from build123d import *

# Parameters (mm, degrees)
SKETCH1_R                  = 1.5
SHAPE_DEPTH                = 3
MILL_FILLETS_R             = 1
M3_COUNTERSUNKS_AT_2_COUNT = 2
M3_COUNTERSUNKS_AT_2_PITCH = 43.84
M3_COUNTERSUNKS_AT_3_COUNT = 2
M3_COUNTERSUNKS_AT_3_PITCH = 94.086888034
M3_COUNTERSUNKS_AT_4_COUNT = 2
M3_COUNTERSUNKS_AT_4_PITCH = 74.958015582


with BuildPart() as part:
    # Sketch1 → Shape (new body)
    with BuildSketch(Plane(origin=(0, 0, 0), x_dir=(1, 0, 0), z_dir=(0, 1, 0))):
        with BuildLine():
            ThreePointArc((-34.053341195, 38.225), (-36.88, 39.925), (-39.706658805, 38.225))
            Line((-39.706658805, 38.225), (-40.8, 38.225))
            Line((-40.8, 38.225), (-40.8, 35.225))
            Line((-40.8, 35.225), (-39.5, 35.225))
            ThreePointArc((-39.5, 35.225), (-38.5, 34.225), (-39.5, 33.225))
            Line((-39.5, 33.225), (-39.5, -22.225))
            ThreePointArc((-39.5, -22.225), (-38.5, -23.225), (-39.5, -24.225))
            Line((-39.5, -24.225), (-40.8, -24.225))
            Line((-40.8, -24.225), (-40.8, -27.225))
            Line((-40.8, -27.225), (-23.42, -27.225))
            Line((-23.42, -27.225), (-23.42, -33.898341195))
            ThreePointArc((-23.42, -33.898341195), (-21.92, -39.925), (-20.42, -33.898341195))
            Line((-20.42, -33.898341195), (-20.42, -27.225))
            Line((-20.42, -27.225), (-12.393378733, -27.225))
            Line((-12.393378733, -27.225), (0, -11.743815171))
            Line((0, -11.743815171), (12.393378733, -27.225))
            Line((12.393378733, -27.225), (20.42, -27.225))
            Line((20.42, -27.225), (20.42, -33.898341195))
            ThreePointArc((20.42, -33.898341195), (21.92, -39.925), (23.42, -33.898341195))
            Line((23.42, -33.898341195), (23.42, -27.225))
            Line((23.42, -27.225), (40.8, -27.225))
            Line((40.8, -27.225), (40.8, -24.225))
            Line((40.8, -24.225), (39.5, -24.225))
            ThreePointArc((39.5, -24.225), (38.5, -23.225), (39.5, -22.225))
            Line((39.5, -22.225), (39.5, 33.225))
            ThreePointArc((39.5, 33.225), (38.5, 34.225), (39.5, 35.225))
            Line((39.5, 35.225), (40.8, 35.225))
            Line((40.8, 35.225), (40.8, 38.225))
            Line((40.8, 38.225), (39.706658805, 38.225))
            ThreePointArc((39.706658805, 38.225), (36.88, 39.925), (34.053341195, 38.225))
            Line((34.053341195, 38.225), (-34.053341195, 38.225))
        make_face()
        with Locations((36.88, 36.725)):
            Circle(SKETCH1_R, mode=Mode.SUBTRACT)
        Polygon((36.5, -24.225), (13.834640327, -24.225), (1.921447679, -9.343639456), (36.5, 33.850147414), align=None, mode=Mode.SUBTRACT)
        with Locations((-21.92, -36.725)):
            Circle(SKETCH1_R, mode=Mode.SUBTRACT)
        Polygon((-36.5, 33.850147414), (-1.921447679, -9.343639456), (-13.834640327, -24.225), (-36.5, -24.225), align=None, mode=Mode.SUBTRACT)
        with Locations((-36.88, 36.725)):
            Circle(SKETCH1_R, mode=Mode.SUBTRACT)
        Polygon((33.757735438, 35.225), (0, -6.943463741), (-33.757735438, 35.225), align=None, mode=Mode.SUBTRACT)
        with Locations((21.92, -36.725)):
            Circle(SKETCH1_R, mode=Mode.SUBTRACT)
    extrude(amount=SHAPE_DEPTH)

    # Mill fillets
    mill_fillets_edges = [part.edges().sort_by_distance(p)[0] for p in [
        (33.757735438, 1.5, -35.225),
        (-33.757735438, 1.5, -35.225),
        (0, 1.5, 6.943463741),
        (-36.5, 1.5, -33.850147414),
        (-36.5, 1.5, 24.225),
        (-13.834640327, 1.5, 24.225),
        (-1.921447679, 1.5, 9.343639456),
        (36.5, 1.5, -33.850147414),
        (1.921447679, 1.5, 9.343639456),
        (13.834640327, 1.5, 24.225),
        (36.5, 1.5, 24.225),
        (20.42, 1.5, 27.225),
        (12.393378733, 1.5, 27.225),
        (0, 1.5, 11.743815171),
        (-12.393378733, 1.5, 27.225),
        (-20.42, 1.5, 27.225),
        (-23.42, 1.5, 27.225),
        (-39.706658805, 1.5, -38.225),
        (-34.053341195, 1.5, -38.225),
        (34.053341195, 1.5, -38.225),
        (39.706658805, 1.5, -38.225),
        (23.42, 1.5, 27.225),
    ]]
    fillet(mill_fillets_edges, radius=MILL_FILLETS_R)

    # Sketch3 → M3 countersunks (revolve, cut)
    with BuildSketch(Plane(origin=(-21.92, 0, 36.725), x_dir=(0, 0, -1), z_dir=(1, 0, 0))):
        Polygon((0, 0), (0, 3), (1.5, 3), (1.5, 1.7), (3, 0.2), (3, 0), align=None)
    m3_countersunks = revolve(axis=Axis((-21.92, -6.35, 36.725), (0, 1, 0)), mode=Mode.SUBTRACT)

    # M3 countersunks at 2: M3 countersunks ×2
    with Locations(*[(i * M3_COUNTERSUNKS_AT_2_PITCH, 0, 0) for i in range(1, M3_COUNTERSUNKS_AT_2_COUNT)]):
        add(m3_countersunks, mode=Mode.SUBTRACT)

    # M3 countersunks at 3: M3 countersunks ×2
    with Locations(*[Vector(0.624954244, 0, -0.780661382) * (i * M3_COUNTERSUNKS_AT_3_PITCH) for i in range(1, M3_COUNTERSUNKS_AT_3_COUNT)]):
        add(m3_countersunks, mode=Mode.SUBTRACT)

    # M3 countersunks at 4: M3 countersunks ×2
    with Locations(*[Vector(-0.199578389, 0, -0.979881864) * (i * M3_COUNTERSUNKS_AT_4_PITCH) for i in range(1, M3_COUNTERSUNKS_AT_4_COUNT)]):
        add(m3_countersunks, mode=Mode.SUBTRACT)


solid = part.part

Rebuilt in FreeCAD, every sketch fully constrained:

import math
import FreeCAD as App
import Part
import Sketcher
Q = App.Units.Quantity


def edges_at(feature, points):
    """Names of the edges that pass closest to the given points."""
    edges = feature.Shape.Edges
    near = lambda p: min(range(len(edges)), key=lambda i: edges[i].distToShape(Part.Vertex(*p))[0])
    return sorted({f"Edge{near(p) + 1}" for p in points})

doc = App.newDocument("Part")
params = doc.addObject("Spreadsheet::Sheet", "Params")
for row, (alias, value) in enumerate([
    ("sketch1_diameter", "3 mm"),
    ("sketch1_radius", "1 mm"),
    ("sketch1_radius2", "3.2 mm"),
    ("sketch1_height", "3 mm"),
    ("sketch1_width", "1.3 mm"),
    ("pad1_length", "3 mm"),
    ("fillet_radius", "1 mm"),
    ("sketch2_width", "3 mm"),
    ("sketch2_width2", "0.2 mm"),
    ("sketch2_width3", "1.3 mm"),
    ("groove_angle", "360 deg"),
    ("linearpattern_pitch", "43.84 mm"),
    ("linearpattern2_pitch", "94.086888 mm"),
    ("linearpattern3_pitch", "74.958016 mm"),
], start=1):
    params.set(f"A{row}", alias)
    params.set(f"B{row}", "=" + value)
    params.setAlias(f"B{row}", alias)

body = doc.addObject("PartDesign::Body", "Body")

# Sketch on XZ plane
sketch1 = body.newObject("Sketcher::SketchObject", "Sketch")
sketch1.AttachmentSupport = (doc.getObject("XZ_Plane"), [""])
sketch1.MapMode = "FlatFace"
sketch1.addGeometry([
    Part.ArcOfCircle(Part.Circle(App.Vector(-36.9, -36.7, 0), App.Vector(0, 0, 1), 3.2), math.radians(-152), math.radians(-28)),  # 0
    Part.LineSegment(App.Vector(-39.7, -38.2, 0), App.Vector(-40.8, -38.2, 0)),  # 1
    Part.LineSegment(App.Vector(-40.8, -38.2, 0), App.Vector(-40.8, -35.2, 0)),  # 2
    Part.LineSegment(App.Vector(-40.8, -35.2, 0), App.Vector(-39.5, -35.2, 0)),  # 3
    Part.ArcOfCircle(Part.Circle(App.Vector(-39.5, -34.2, 0), App.Vector(0, 0, 1), 1), math.radians(-90), math.radians(90)),  # 4
    Part.LineSegment(App.Vector(-39.5, -33.2, 0), App.Vector(-39.5, 22.2, 0)),  # 5
    Part.ArcOfCircle(Part.Circle(App.Vector(-39.5, 23.2, 0), App.Vector(0, 0, 1), 1), math.radians(-90), math.radians(90)),  # 6
    Part.LineSegment(App.Vector(-39.5, 24.2, 0), App.Vector(-40.8, 24.2, 0)),  # 7
    Part.LineSegment(App.Vector(-40.8, 24.2, 0), App.Vector(-40.8, 27.2, 0)),  # 8
    Part.LineSegment(App.Vector(-40.8, 27.2, 0), App.Vector(-23.4, 27.2, 0)),  # 9
    Part.LineSegment(App.Vector(-23.4, 27.2, 0), App.Vector(-23.4, 33.9, 0)),  # 10
    Part.ArcOfCircle(Part.Circle(App.Vector(-21.9, 36.7, 0), App.Vector(0, 0, 1), 3.2), math.radians(-62), math.radians(242)),  # 11
    Part.LineSegment(App.Vector(-20.4, 33.9, 0), App.Vector(-20.4, 27.2, 0)),  # 12
    Part.LineSegment(App.Vector(-20.4, 27.2, 0), App.Vector(-12.4, 27.2, 0)),  # 13
    Part.LineSegment(App.Vector(-12.4, 27.2, 0), App.Vector(0, 11.7, 0)),  # 14
    Part.LineSegment(App.Vector(0, 11.7, 0), App.Vector(12.4, 27.2, 0)),  # 15
    Part.LineSegment(App.Vector(12.4, 27.2, 0), App.Vector(20.4, 27.2, 0)),  # 16
    Part.LineSegment(App.Vector(20.4, 27.2, 0), App.Vector(20.4, 33.9, 0)),  # 17
    Part.ArcOfCircle(Part.Circle(App.Vector(21.9, 36.7, 0), App.Vector(0, 0, 1), 3.2), math.radians(-62), math.radians(242)),  # 18
    Part.LineSegment(App.Vector(23.4, 33.9, 0), App.Vector(23.4, 27.2, 0)),  # 19
    Part.LineSegment(App.Vector(23.4, 27.2, 0), App.Vector(40.8, 27.2, 0)),  # 20
    Part.LineSegment(App.Vector(40.8, 27.2, 0), App.Vector(40.8, 24.2, 0)),  # 21
    Part.LineSegment(App.Vector(40.8, 24.2, 0), App.Vector(39.5, 24.2, 0)),  # 22
    Part.ArcOfCircle(Part.Circle(App.Vector(39.5, 23.2, 0), App.Vector(0, 0, 1), 1), math.radians(90), math.radians(270)),  # 23
    Part.LineSegment(App.Vector(39.5, 22.2, 0), App.Vector(39.5, -33.2, 0)),  # 24
    Part.ArcOfCircle(Part.Circle(App.Vector(39.5, -34.2, 0), App.Vector(0, 0, 1), 1), math.radians(90), math.radians(270)),  # 25
    Part.LineSegment(App.Vector(39.5, -35.2, 0), App.Vector(40.8, -35.2, 0)),  # 26
    Part.LineSegment(App.Vector(40.8, -35.2, 0), App.Vector(40.8, -38.2, 0)),  # 27
    Part.LineSegment(App.Vector(40.8, -38.2, 0), App.Vector(39.7, -38.2, 0)),  # 28
    Part.ArcOfCircle(Part.Circle(App.Vector(36.9, -36.7, 0), App.Vector(0, 0, 1), 3.2), math.radians(-152), math.radians(-28)),  # 29
    Part.LineSegment(App.Vector(34.1, -38.2, 0), App.Vector(-34.1, -38.2, 0)),  # 30
    Part.Circle(App.Vector(-21.9, 36.7, 0), App.Vector(0, 0, 1), 1.5),  # 31
    Part.Circle(App.Vector(21.9, 36.7, 0), App.Vector(0, 0, 1), 1.5),  # 32
    Part.LineSegment(App.Vector(-36.5, 24.2, 0), App.Vector(-36.5, -33.9, 0)),  # 33
    Part.LineSegment(App.Vector(-36.5, -33.9, 0), App.Vector(-1.9, 9.3, 0)),  # 34
    Part.LineSegment(App.Vector(-1.9, 9.3, 0), App.Vector(-13.8, 24.2, 0)),  # 35
    Part.LineSegment(App.Vector(-13.8, 24.2, 0), App.Vector(-36.5, 24.2, 0)),  # 36
    Part.LineSegment(App.Vector(-33.8, -35.2, 0), App.Vector(33.8, -35.2, 0)),  # 37
    Part.LineSegment(App.Vector(33.8, -35.2, 0), App.Vector(0, 6.9, 0)),  # 38
    Part.LineSegment(App.Vector(0, 6.9, 0), App.Vector(-33.8, -35.2, 0)),  # 39
    Part.Circle(App.Vector(-36.9, -36.7, 0), App.Vector(0, 0, 1), 1.5),  # 40
    Part.LineSegment(App.Vector(36.5, -33.9, 0), App.Vector(36.5, 24.2, 0)),  # 41
    Part.LineSegment(App.Vector(36.5, 24.2, 0), App.Vector(13.8, 24.2, 0)),  # 42
    Part.LineSegment(App.Vector(13.8, 24.2, 0), App.Vector(1.9, 9.3, 0)),  # 43
    Part.LineSegment(App.Vector(1.9, 9.3, 0), App.Vector(36.5, -33.9, 0)),  # 44
    Part.Circle(App.Vector(36.9, -36.7, 0), App.Vector(0, 0, 1), 1.5),  # 45
], False)
sketch1.addConstraint([
    Sketcher.Constraint("Coincident", 0, 1, 1, 1),
    Sketcher.Constraint("Coincident", 1, 2, 2, 1),
    Sketcher.Constraint("Coincident", 2, 2, 3, 1),
    Sketcher.Constraint("Tangent", 3, 2, 4, 1),
    Sketcher.Constraint("Coincident", 4, 2, 5, 1),
    Sketcher.Constraint("Coincident", 5, 2, 6, 1),
    Sketcher.Constraint("Tangent", 6, 2, 7, 1),
    Sketcher.Constraint("Coincident", 7, 2, 8, 1),
    Sketcher.Constraint("Coincident", 8, 2, 9, 1),
    Sketcher.Constraint("Coincident", 9, 2, 10, 1),
    Sketcher.Constraint("Coincident", 10, 2, 11, 2),
    Sketcher.Constraint("Coincident", 11, 1, 12, 1),
    Sketcher.Constraint("Coincident", 12, 2, 13, 1),
    Sketcher.Constraint("Coincident", 13, 2, 14, 1),
    Sketcher.Constraint("Coincident", 14, 2, 15, 1),
    Sketcher.Constraint("Coincident", 15, 2, 16, 1),
    Sketcher.Constraint("Coincident", 16, 2, 17, 1),
    Sketcher.Constraint("Coincident", 17, 2, 18, 2),
    Sketcher.Constraint("Coincident", 18, 1, 19, 1),
    Sketcher.Constraint("Coincident", 19, 2, 20, 1),
    Sketcher.Constraint("Coincident", 20, 2, 21, 1),
    Sketcher.Constraint("Coincident", 21, 2, 22, 1),
    Sketcher.Constraint("Tangent", 22, 2, 23, 1),
    Sketcher.Constraint("Coincident", 23, 2, 24, 1),
    Sketcher.Constraint("Coincident", 24, 2, 25, 1),
    Sketcher.Constraint("Tangent", 25, 2, 26, 1),
    Sketcher.Constraint("Coincident", 26, 2, 27, 1),
    Sketcher.Constraint("Coincident", 27, 2, 28, 1),
    Sketcher.Constraint("Coincident", 28, 2, 29, 2),
    Sketcher.Constraint("Coincident", 29, 1, 30, 1),
    Sketcher.Constraint("Coincident", 30, 2, 0, 2),
    Sketcher.Constraint("Coincident", 33, 2, 34, 1),
    Sketcher.Constraint("Coincident", 34, 2, 35, 1),
    Sketcher.Constraint("Coincident", 35, 2, 36, 1),
    Sketcher.Constraint("Coincident", 36, 2, 33, 1),
    Sketcher.Constraint("Coincident", 37, 2, 38, 1),
    Sketcher.Constraint("Coincident", 38, 2, 39, 1),
    Sketcher.Constraint("Coincident", 39, 2, 37, 1),
    Sketcher.Constraint("Coincident", 41, 2, 42, 1),
    Sketcher.Constraint("Coincident", 42, 2, 43, 1),
    Sketcher.Constraint("Coincident", 43, 2, 44, 1),
    Sketcher.Constraint("Coincident", 44, 2, 41, 1),
    Sketcher.Constraint("Horizontal", 1),
    Sketcher.Constraint("Vertical", 2),
    Sketcher.Constraint("Horizontal", 3),
    Sketcher.Constraint("Vertical", 5),
    Sketcher.Constraint("Horizontal", 7),
    Sketcher.Constraint("Vertical", 8),
    Sketcher.Constraint("Horizontal", 9),
    Sketcher.Constraint("Vertical", 10),
    Sketcher.Constraint("Vertical", 12),
    Sketcher.Constraint("Horizontal", 13),
    Sketcher.Constraint("Horizontal", 16),
    Sketcher.Constraint("Vertical", 17),
    Sketcher.Constraint("Vertical", 19),
    Sketcher.Constraint("Horizontal", 20),
    Sketcher.Constraint("Vertical", 21),
    Sketcher.Constraint("Horizontal", 22),
    Sketcher.Constraint("Vertical", 24),
    Sketcher.Constraint("Horizontal", 26),
    Sketcher.Constraint("Vertical", 27),
    Sketcher.Constraint("Horizontal", 28),
    Sketcher.Constraint("Horizontal", 30),
    Sketcher.Constraint("Vertical", 33),
    Sketcher.Constraint("Horizontal", 36),
    Sketcher.Constraint("Horizontal", 37),
    Sketcher.Constraint("Vertical", 41),
    Sketcher.Constraint("Horizontal", 42),
    Sketcher.Constraint("Coincident", 31, 3, 11, 3),
    Sketcher.Constraint("Coincident", 32, 3, 18, 3),
    Sketcher.Constraint("Coincident", 40, 3, 0, 3),
    Sketcher.Constraint("Coincident", 45, 3, 29, 3),
    Sketcher.Constraint("Equal", 4, 6),
    Sketcher.Constraint("Equal", 0, 11),
    Sketcher.Constraint("Equal", 11, 18),
    Sketcher.Constraint("Equal", 6, 23),
    Sketcher.Constraint("Equal", 23, 25),
    Sketcher.Constraint("Equal", 18, 29),
    Sketcher.Constraint("Equal", 31, 32),
    Sketcher.Constraint("Equal", 32, 40),
    Sketcher.Constraint("Equal", 40, 45),
    Sketcher.Constraint("Symmetric", 11, 3, 18, 3, -2),
    Sketcher.Constraint("Symmetric", 6, 3, 23, 3, -2),
    Sketcher.Constraint("Symmetric", 4, 3, 25, 3, -2),
    Sketcher.Constraint("Symmetric", 0, 3, 29, 3, -2),
    Sketcher.Constraint("Symmetric", 13, 2, 15, 2, -2),
    Sketcher.Constraint("Symmetric", 9, 2, 19, 2, -2),
    Sketcher.Constraint("Symmetric", 1, 2, 27, 2, -2),
    Sketcher.Constraint("Symmetric", 36, 2, 41, 2, -2),
    Sketcher.Constraint("Symmetric", 34, 2, 43, 2, -2),
    Sketcher.Constraint("PointOnObject", 14, 2, -2),
    Sketcher.Constraint("PointOnObject", 38, 2, -2),
    Sketcher.Constraint("Parallel", 15, 34),
    Sketcher.Constraint("Parallel", 14, 35),
    Sketcher.Constraint("Parallel", 35, 38),
    Sketcher.Constraint("Parallel", 34, 39),
    Sketcher.Constraint("Parallel", 39, 43),
    Sketcher.Constraint("Parallel", 38, 44),
    Sketcher.Constraint("Horizontal", 10, 2, 11, 1),
    Sketcher.Constraint("Horizontal", 9, 2, 12, 2),
    Sketcher.Constraint("Horizontal", 11, 1, 17, 2),
    Sketcher.Constraint("Horizontal", 28, 2, 29, 1),
    Sketcher.Constraint("Horizontal", 22, 2, 35, 2),
    Sketcher.Constraint("Horizontal", 26, 2, 37, 2),
    Sketcher.Constraint("Vertical", 4, 3, 6, 3),
    Sketcher.Constraint("Vertical", 3, 2, 4, 2),
    Sketcher.Constraint("Vertical", 2, 2, 7, 2),
    Sketcher.Constraint("Vertical", 22, 2, 23, 2),
    Sketcher.Constraint("Vertical", 21, 2, 26, 2),
    Sketcher.Constraint("Equal", 2, 8),
    Sketcher.Constraint("Diameter", 31, Q("3 mm")),
    Sketcher.Constraint("Radius", 4, Q("1 mm")),
    Sketcher.Constraint("Radius", 0, Q("3.2 mm")),
    Sketcher.Constraint("DistanceY", 2, 1, 2, 2, Q("3 mm")),
    Sketcher.Constraint("DistanceX", 3, 1, 3, 2, Q("1.3 mm")),
    Sketcher.Constraint("DistanceX", 6, 3, 23, 3, Q("79 mm")),
    Sketcher.Constraint("DistanceX", 10, 2, 11, 1, Q("3 mm")),
    Sketcher.Constraint("DistanceX", 4, 3, 33, 2, Q("3 mm")),
    Sketcher.Constraint("DistanceX", 9, 1, 9, 2, Q("17.38 mm")),
    Sketcher.Constraint("DistanceY", 5, 1, 5, 2, Q("55.45 mm")),
    Sketcher.Constraint("DistanceY", 0, 3, 4, 3, Q("2.5 mm")),
    Sketcher.Constraint("DistanceY", 6, 3, 11, 3, Q("13.5 mm")),
    Sketcher.Constraint("DistanceX", 0, 3, 18, 3, Q("58.8 mm")),
    Sketcher.Constraint("DistanceY", 0, 3, -1, 1, Q("36.725 mm")),
    Sketcher.Constraint("DistanceX", 13, 1, 13, 2, Q("8.026621 mm")),
    Sketcher.Constraint("DistanceX", 36, 2, 36, 1, Q("22.66536 mm")),
    Sketcher.Constraint("DistanceX", 37, 1, 37, 2, Q("67.515471 mm")),
    Sketcher.Constraint("Distance", 38, Q("54.016331 mm")),
    Sketcher.Constraint("DistanceY", 33, 2, 33, 1, Q("58.075147 mm")),
])
sketch1.setExpression("Constraints[110]", "Params.sketch1_diameter")
sketch1.setExpression("Constraints[111]", "Params.sketch1_radius")
sketch1.setExpression("Constraints[112]", "Params.sketch1_radius2")
sketch1.setExpression("Constraints[113]", "Params.sketch1_height")
sketch1.setExpression("Constraints[114]", "Params.sketch1_width")
pad1 = body.newObject("PartDesign::Pad", "Pad")
pad1.Profile = sketch1
pad1.setExpression("Length", "Params.pad1_length")
pad1.Reversed = True
doc.recompute()

fillet = body.newObject("PartDesign::Fillet", "Fillet")
fillet.Base = (pad1, edges_at(pad1, [
    (33.758, 1.5, -35.225),
    (-33.758, 1.5, -35.225),
    (0, 1.5, 6.943),
    (-36.5, 1.5, -33.85),
    (-36.5, 1.5, 24.225),
    (-13.835, 1.5, 24.225),
    (-1.921, 1.5, 9.344),
    (36.5, 1.5, -33.85),
    (1.921, 1.5, 9.344),
    (13.835, 1.5, 24.225),
    (36.5, 1.5, 24.225),
    (20.42, 1.5, 27.225),
    (12.393, 1.5, 27.225),
    (0, 1.5, 11.744),
    (-12.393, 1.5, 27.225),
    (-20.42, 1.5, 27.225),
    (-23.42, 1.5, 27.225),
    (-39.707, 1.5, -38.225),
    (-34.053, 1.5, -38.225),
    (34.053, 1.5, -38.225),
    (39.707, 1.5, -38.225),
    (23.42, 1.5, 27.225),
]))
fillet.setExpression("Radius", "Params.fillet_radius")

# Sketch on YZ plane
sketch2 = body.newObject("Sketcher::SketchObject", "Sketch001")
sketch2.AttachmentSupport = (doc.getObject("YZ_Plane"), [""])
sketch2.MapMode = "FlatFace"
sketch2.AttachmentOffset = App.Placement(App.Vector(0, 0, -21.92), App.Rotation())
sketch2.addGeometry([
    Part.LineSegment(App.Vector(3, 36.73, 0), App.Vector(0, 36.73, 0)),  # 0
    Part.LineSegment(App.Vector(0, 36.73, 0), App.Vector(0, 33.73, 0)),  # 1
    Part.LineSegment(App.Vector(0, 33.73, 0), App.Vector(0.2, 33.73, 0)),  # 2
    Part.LineSegment(App.Vector(0.2, 33.73, 0), App.Vector(1.7, 35.23, 0)),  # 3
    Part.LineSegment(App.Vector(1.7, 35.23, 0), App.Vector(3, 35.23, 0)),  # 4
    Part.LineSegment(App.Vector(3, 35.23, 0), App.Vector(3, 36.73, 0)),  # 5
], False)
sketch2.addGeometry(Part.LineSegment(App.Vector(0, 36.73, 0), App.Vector(3, 36.73, 0)), True)  # axis
sketch2.addConstraint([
    Sketcher.Constraint("Coincident", 0, 2, 1, 1),
    Sketcher.Constraint("Coincident", 1, 2, 2, 1),
    Sketcher.Constraint("Coincident", 2, 2, 3, 1),
    Sketcher.Constraint("Coincident", 3, 2, 4, 1),
    Sketcher.Constraint("Coincident", 4, 2, 5, 1),
    Sketcher.Constraint("Coincident", 5, 2, 0, 1),
    Sketcher.Constraint("Horizontal", 0),
    Sketcher.Constraint("Vertical", 1),
    Sketcher.Constraint("Horizontal", 2),
    Sketcher.Constraint("Horizontal", 4),
    Sketcher.Constraint("Vertical", 5),
    Sketcher.Constraint("Horizontal", 6),
    Sketcher.Constraint("Coincident", 6, 1, 0, 2),
    Sketcher.Constraint("PointOnObject", 0, 2, -2),
    Sketcher.Constraint("Vertical", 4, 2, 6, 2),
    Sketcher.Constraint("Equal", 6, 1),
    Sketcher.Constraint("DistanceX", 0, 2, 0, 1, Q("3 mm")),
    Sketcher.Constraint("Angle", 3, Q("45 deg")),
    Sketcher.Constraint("DistanceX", 2, 1, 2, 2, Q("0.2 mm")),
    Sketcher.Constraint("DistanceX", 4, 1, 4, 2, Q("1.3 mm")),
    Sketcher.Constraint("DistanceY", -1, 1, 0, 2, Q("36.725 mm")),
])
sketch2.setExpression("Constraints[16]", "Params.sketch2_width")
sketch2.setExpression("Constraints[18]", "Params.sketch2_width2")
sketch2.setExpression("Constraints[19]", "Params.sketch2_width3")
groove = body.newObject("PartDesign::Groove", "Groove")
groove.Profile = sketch2
groove.ReferenceAxis = (sketch2, ["Axis0"])
groove.setExpression("Angle", "Params.groove_angle")
doc.recompute()

linearpattern = body.newObject("PartDesign::LinearPattern", "LinearPattern")
linearpattern.Originals = [groove]
linearpattern.Direction = (doc.getObject("X_Axis"), [""])
linearpattern.Mode = "offset"
linearpattern.setExpression("Offset", "Params.linearpattern_pitch")
linearpattern.Occurrences = 2
body.Tip = linearpattern
doc.recompute()

datumline = body.newObject("PartDesign::Line", "DatumLine")
datumline.Placement = App.Placement(App.Vector(0, 0, 0), App.Rotation(App.Vector(0, 0, 1), App.Vector(0.624954244, 0, -0.780661382)))
linearpattern2 = body.newObject("PartDesign::LinearPattern", "LinearPattern001")
linearpattern2.Originals = [groove]
linearpattern2.Direction = (datumline, [""])
linearpattern2.Mode = "offset"
linearpattern2.setExpression("Offset", "Params.linearpattern2_pitch")
linearpattern2.Occurrences = 2
body.Tip = linearpattern2
doc.recompute()

datumline2 = body.newObject("PartDesign::Line", "DatumLine001")
datumline2.Placement = App.Placement(App.Vector(0, 0, 0), App.Rotation(App.Vector(0, 0, 1), App.Vector(-0.199578389, 0, -0.979881864)))
linearpattern3 = body.newObject("PartDesign::LinearPattern", "LinearPattern002")
linearpattern3.Originals = [groove]
linearpattern3.Direction = (datumline2, [""])
linearpattern3.Mode = "offset"
linearpattern3.setExpression("Offset", "Params.linearpattern3_pitch")
linearpattern3.Occurrences = 2
body.Tip = linearpattern3

doc.recompute()
